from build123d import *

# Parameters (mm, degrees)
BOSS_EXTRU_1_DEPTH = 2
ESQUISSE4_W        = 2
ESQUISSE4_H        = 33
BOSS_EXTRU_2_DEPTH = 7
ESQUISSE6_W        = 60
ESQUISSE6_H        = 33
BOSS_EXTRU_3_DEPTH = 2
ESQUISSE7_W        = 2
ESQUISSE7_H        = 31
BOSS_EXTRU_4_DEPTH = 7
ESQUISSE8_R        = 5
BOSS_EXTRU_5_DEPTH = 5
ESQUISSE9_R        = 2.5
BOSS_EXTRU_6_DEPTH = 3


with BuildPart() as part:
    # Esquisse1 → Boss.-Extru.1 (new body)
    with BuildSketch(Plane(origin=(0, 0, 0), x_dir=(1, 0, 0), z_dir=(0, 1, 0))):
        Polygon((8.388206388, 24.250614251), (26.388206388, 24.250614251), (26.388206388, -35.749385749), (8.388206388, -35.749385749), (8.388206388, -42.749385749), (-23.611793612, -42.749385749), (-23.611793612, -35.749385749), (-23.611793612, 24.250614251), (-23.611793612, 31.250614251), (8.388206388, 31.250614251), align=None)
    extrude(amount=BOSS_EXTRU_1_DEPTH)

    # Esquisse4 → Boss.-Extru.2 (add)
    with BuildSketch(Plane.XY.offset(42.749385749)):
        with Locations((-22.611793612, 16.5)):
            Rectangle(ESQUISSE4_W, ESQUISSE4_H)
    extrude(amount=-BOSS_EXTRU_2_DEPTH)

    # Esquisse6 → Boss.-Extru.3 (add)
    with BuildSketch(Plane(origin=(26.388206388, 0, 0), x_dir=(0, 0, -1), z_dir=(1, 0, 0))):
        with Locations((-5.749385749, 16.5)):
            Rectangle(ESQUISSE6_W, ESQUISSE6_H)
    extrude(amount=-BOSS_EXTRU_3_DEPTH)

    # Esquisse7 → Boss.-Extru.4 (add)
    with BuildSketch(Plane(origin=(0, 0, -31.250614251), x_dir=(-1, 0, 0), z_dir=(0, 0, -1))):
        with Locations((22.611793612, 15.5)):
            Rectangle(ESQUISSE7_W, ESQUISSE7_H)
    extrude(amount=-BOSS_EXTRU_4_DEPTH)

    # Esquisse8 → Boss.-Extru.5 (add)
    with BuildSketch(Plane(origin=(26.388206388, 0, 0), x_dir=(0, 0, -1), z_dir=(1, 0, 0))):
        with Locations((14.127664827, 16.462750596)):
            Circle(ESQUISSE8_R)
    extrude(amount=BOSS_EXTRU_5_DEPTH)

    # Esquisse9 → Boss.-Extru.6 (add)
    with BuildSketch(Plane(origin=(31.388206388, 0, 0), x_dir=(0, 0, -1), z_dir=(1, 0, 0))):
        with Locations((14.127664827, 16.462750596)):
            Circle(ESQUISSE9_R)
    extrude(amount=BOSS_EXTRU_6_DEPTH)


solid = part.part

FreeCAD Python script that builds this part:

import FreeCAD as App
import Part
import Sketcher

V = App.Vector
Q = App.Units.Quantity

doc = App.newDocument("Part")
body = doc.addObject("PartDesign::Body", "Body")

# Sketch on XZ plane
sketch1 = body.newObject("Sketcher::SketchObject", "Sketch")
sketch1.AttachmentSupport = (doc.getObject("XZ_Plane"), [""])
sketch1.MapMode = "FlatFace"
sketch1.addGeometry(Part.LineSegment(V(26, -24, 0), V(8, -24, 0)), False)
sketch1.addGeometry(Part.LineSegment(V(8, -24, 0), V(8, -31, 0)), False)
sketch1.addGeometry(Part.LineSegment(V(8, -31, 0), V(-24, -31, 0)), False)
sketch1.addGeometry(Part.LineSegment(V(-24, -31, 0), V(-24, 43, 0)), False)
sketch1.addGeometry(Part.LineSegment(V(-24, 43, 0), V(8, 43, 0)), False)
sketch1.addGeometry(Part.LineSegment(V(8, 43, 0), V(8, 36, 0)), False)
sketch1.addGeometry(Part.LineSegment(V(8, 36, 0), V(26, 36, 0)), False)
sketch1.addGeometry(Part.LineSegment(V(26, 36, 0), V(26, -24, 0)), False)
sketch1.addConstraint(Sketcher.Constraint("Coincident", 0, 2, 1, 1))
sketch1.addConstraint(Sketcher.Constraint("Coincident", 1, 2, 2, 1))
sketch1.addConstraint(Sketcher.Constraint("Coincident", 2, 2, 3, 1))
sketch1.addConstraint(Sketcher.Constraint("Coincident", 3, 2, 4, 1))
sketch1.addConstraint(Sketcher.Constraint("Coincident", 4, 2, 5, 1))
sketch1.addConstraint(Sketcher.Constraint("Coincident", 5, 2, 6, 1))
sketch1.addConstraint(Sketcher.Constraint("Coincident", 6, 2, 7, 1))
sketch1.addConstraint(Sketcher.Constraint("Coincident", 7, 2, 0, 1))
sketch1.addConstraint(Sketcher.Constraint("Horizontal", 0))
sketch1.addConstraint(Sketcher.Constraint("Vertical", 1))
sketch1.addConstraint(Sketcher.Constraint("Horizontal", 2))
sketch1.addConstraint(Sketcher.Constraint("Vertical", 3))
sketch1.addConstraint(Sketcher.Constraint("Horizontal", 4))
sketch1.addConstraint(Sketcher.Constraint("Vertical", 5))
sketch1.addConstraint(Sketcher.Constraint("Horizontal", 6))
sketch1.addConstraint(Sketcher.Constraint("Vertical", 7))
sketch1.addConstraint(Sketcher.Constraint("Vertical", 1, 2, 4, 2))
sketch1.addConstraint(Sketcher.Constraint("Equal", 1, 5))
sketch1.addConstraint(Sketcher.Constraint("DistanceX", 0, 2, 0, 1, Q("18 mm")))
sketch1.addConstraint(Sketcher.Constraint("DistanceX", 2, 2, 2, 1, Q("32 mm")))
sketch1.addConstraint(Sketcher.Constraint("DistanceY", 1, 2, 1, 1, Q("7 mm")))
sketch1.addConstraint(Sketcher.Constraint("DistanceY", 3, 1, 3, 2, Q("74 mm")))
sketch1.addConstraint(Sketcher.Constraint("DistanceX", -1, 1, 0, 2, Q("8.388206 mm")))
sketch1.addConstraint(Sketcher.Constraint("DistanceY", 0, 2, -1, 1, Q("24.250614 mm")))
pad1 = body.newObject("PartDesign::Pad", "Pad")
pad1.Profile = sketch1
pad1.Length = 2
pad1.Reversed = True

# Sketch on XY plane
sketch2 = body.newObject("Sketcher::SketchObject", "Sketch001")
sketch2.AttachmentSupport = (doc.getObject("XY_Plane"), [""])
sketch2.MapMode = "FlatFace"
sketch2.AttachmentOffset = App.Placement(V(0, 0, 42.749386), App.Rotation())
sketch2.addGeometry(Part.LineSegment(V(-23.6, 33, 0), V(-23.6, 0, 0)), False)
sketch2.addGeometry(Part.LineSegment(V(-23.6, 0, 0), V(-21.6, 0, 0)), False)
sketch2.addGeometry(Part.LineSegment(V(-21.6, 0, 0), V(-21.6, 33, 0)), False)
sketch2.addGeometry(Part.LineSegment(V(-21.6, 33, 0), V(-23.6, 33, 0)), False)
sketch2.addConstraint(Sketcher.Constraint("Coincident", 0, 2, 1, 1))
sketch2.addConstraint(Sketcher.Constraint("Coincident", 1, 2, 2, 1))
sketch2.addConstraint(Sketcher.Constraint("Coincident", 2, 2, 3, 1))
sketch2.addConstraint(Sketcher.Constraint("Coincident", 3, 2, 0, 1))
sketch2.addConstraint(Sketcher.Constraint("Vertical", 0))
sketch2.addConstraint(Sketcher.Constraint("Horizontal", 1))
sketch2.addConstraint(Sketcher.Constraint("Vertical", 2))
sketch2.addConstraint(Sketcher.Constraint("Horizontal", 3))
sketch2.addConstraint(Sketcher.Constraint("PointOnObject", 0, 2, -1))
sketch2.addConstraint(Sketcher.Constraint("DistanceX", 1, 1, 1, 2, Q("2 mm")))
sketch2.addConstraint(Sketcher.Constraint("DistanceY", 0, 2, 0, 1, Q("33 mm")))
sketch2.addConstraint(Sketcher.Constraint("DistanceX", 0, 2, -1, 1, Q("23.611794 mm")))
pad2 = body.newObject("PartDesign::Pad", "Pad001")
pad2.Profile = sketch2
pad2.Length = 7
pad2.Reversed = True

# Sketch on YZ plane
sketch3 = body.newObject("Sketcher::SketchObject", "Sketch002")
sketch3.AttachmentSupport = (doc.getObject("YZ_Plane"), [""])
sketch3.MapMode = "FlatFace"
sketch3.AttachmentOffset = App.Placement(V(0, 0, 26.388206), App.Rotation())
sketch3.addGeometry(Part.LineSegment(V(33, 36, 0), V(0, 36, 0)), False)
sketch3.addGeometry(Part.LineSegment(V(0, 36, 0), V(0, -24, 0)), False)
sketch3.addGeometry(Part.LineSegment(V(0, -24, 0), V(33, -24, 0)), False)
sketch3.addGeometry(Part.LineSegment(V(33, -24, 0), V(33, 36, 0)), False)
sketch3.addConstraint(Sketcher.Constraint("Coincident", 0, 2, 1, 1))
sketch3.addConstraint(Sketcher.Constraint("Coincident", 1, 2, 2, 1))
sketch3.addConstraint(Sketcher.Constraint("Coincident", 2, 2, 3, 1))
sketch3.addConstraint(Sketcher.Constraint("Coincident", 3, 2, 0, 1))
sketch3.addConstraint(Sketcher.Constraint("Horizontal", 0))
sketch3.addConstraint(Sketcher.Constraint("Vertical", 1))
sketch3.addConstraint(Sketcher.Constraint("Horizontal", 2))
sketch3.addConstraint(Sketcher.Constraint("Vertical", 3))
sketch3.addConstraint(Sketcher.Constraint("PointOnObject", 0, 2, -2))
sketch3.addConstraint(Sketcher.Constraint("DistanceX", 0, 2, 0, 1, Q("33 mm")))
sketch3.addConstraint(Sketcher.Constraint("DistanceY", 1, 2, 1, 1, Q("60 mm")))
sketch3.addConstraint(Sketcher.Constraint("DistanceY", -1, 1, 0, 2, Q("35.749386 mm")))
pad3 = body.newObject("PartDesign::Pad", "Pad002")
pad3.Profile = sketch3
pad3.Length = 2
pad3.Reversed = True

# Sketch on XY plane
sketch4 = body.newObject("Sketcher::SketchObject", "Sketch003")
sketch4.AttachmentSupport = (doc.getObject("XY_Plane"), [""])
sketch4.MapMode = "FlatFace"
sketch4.AttachmentOffset = App.Placement(V(0, 0, -31.250614), App.Rotation())
sketch4.addGeometry(Part.LineSegment(V(-21.6, 31, 0), V(-21.6, 0, 0)), False)
sketch4.addGeometry(Part.LineSegment(V(-21.6, 0, 0), V(-23.6, 0, 0)), False)
sketch4.addGeometry(Part.LineSegment(V(-23.6, 0, 0), V(-23.6, 31, 0)), False)
sketch4.addGeometry(Part.LineSegment(V(-23.6, 31, 0), V(-21.6, 31, 0)), False)
sketch4.addConstraint(Sketcher.Constraint("Coincident", 0, 2, 1, 1))
sketch4.addConstraint(Sketcher.Constraint("Coincident", 1, 2, 2, 1))
sketch4.addConstraint(Sketcher.Constraint("Coincident", 2, 2, 3, 1))
sketch4.addConstraint(Sketcher.Constraint("Coincident", 3, 2, 0, 1))
sketch4.addConstraint(Sketcher.Constraint("Vertical", 0))
sketch4.addConstraint(Sketcher.Constraint("Horizontal", 1))
sketch4.addConstraint(Sketcher.Constraint("Vertical", 2))
sketch4.addConstraint(Sketcher.Constraint("Horizontal", 3))
sketch4.addConstraint(Sketcher.Constraint("PointOnObject", 0, 2, -1))
sketch4.addConstraint(Sketcher.Constraint("DistanceX", 1, 2, 1, 1, Q("2 mm")))
sketch4.addConstraint(Sketcher.Constraint("DistanceY", 0, 2, 0, 1, Q("31 mm")))
sketch4.addConstraint(Sketcher.Constraint("DistanceX", 0, 2, -1, 1, Q("21.611794 mm")))
pad4 = body.newObject("PartDesign::Pad", "Pad003")
pad4.Profile = sketch4
pad4.Length = 7

# Sketch on YZ plane
sketch5 = body.newObject("Sketcher::SketchObject", "Sketch004")
sketch5.AttachmentSupport = (doc.getObject("YZ_Plane"), [""])
sketch5.MapMode = "FlatFace"
sketch5.AttachmentOffset = App.Placement(V(0, 0, 26.388206), App.Rotation())
sketch5.addGeometry(Part.Circle(V(16, -14, 0), V(0, 0, 1), 5), False)
sketch5.addConstraint(Sketcher.Constraint("Diameter", 0, Q("10 mm")))
sketch5.addConstraint(Sketcher.Constraint("DistanceX", -1, 1, 0, 3, Q("16.462751 mm")))
sketch5.addConstraint(Sketcher.Constraint("DistanceY", 0, 3, -1, 1, Q("14.127665 mm")))
pad5 = body.newObject("PartDesign::Pad", "Pad004")
pad5.Profile = sketch5
pad5.Length = 5

# Sketch on YZ plane
sketch6 = body.newObject("Sketcher::SketchObject", "Sketch005")
sketch6.AttachmentSupport = (doc.getObject("YZ_Plane"), [""])
sketch6.MapMode = "FlatFace"
sketch6.AttachmentOffset = App.Placement(V(0, 0, 31.388206), App.Rotation())
sketch6.addGeometry(Part.Circle(V(16.5, -14.1, 0), V(0, 0, 1), 2.5), False)
sketch6.addConstraint(Sketcher.Constraint("Diameter", 0, Q("5 mm")))
sketch6.addConstraint(Sketcher.Constraint("DistanceX", -1, 1, 0, 3, Q("16.462751 mm")))
sketch6.addConstraint(Sketcher.Constraint("DistanceY", 0, 3, -1, 1, Q("14.127665 mm")))
pad6 = body.newObject("PartDesign::Pad", "Pad005")
pad6.Profile = sketch6
pad6.Length = 3

doc.recompute()
